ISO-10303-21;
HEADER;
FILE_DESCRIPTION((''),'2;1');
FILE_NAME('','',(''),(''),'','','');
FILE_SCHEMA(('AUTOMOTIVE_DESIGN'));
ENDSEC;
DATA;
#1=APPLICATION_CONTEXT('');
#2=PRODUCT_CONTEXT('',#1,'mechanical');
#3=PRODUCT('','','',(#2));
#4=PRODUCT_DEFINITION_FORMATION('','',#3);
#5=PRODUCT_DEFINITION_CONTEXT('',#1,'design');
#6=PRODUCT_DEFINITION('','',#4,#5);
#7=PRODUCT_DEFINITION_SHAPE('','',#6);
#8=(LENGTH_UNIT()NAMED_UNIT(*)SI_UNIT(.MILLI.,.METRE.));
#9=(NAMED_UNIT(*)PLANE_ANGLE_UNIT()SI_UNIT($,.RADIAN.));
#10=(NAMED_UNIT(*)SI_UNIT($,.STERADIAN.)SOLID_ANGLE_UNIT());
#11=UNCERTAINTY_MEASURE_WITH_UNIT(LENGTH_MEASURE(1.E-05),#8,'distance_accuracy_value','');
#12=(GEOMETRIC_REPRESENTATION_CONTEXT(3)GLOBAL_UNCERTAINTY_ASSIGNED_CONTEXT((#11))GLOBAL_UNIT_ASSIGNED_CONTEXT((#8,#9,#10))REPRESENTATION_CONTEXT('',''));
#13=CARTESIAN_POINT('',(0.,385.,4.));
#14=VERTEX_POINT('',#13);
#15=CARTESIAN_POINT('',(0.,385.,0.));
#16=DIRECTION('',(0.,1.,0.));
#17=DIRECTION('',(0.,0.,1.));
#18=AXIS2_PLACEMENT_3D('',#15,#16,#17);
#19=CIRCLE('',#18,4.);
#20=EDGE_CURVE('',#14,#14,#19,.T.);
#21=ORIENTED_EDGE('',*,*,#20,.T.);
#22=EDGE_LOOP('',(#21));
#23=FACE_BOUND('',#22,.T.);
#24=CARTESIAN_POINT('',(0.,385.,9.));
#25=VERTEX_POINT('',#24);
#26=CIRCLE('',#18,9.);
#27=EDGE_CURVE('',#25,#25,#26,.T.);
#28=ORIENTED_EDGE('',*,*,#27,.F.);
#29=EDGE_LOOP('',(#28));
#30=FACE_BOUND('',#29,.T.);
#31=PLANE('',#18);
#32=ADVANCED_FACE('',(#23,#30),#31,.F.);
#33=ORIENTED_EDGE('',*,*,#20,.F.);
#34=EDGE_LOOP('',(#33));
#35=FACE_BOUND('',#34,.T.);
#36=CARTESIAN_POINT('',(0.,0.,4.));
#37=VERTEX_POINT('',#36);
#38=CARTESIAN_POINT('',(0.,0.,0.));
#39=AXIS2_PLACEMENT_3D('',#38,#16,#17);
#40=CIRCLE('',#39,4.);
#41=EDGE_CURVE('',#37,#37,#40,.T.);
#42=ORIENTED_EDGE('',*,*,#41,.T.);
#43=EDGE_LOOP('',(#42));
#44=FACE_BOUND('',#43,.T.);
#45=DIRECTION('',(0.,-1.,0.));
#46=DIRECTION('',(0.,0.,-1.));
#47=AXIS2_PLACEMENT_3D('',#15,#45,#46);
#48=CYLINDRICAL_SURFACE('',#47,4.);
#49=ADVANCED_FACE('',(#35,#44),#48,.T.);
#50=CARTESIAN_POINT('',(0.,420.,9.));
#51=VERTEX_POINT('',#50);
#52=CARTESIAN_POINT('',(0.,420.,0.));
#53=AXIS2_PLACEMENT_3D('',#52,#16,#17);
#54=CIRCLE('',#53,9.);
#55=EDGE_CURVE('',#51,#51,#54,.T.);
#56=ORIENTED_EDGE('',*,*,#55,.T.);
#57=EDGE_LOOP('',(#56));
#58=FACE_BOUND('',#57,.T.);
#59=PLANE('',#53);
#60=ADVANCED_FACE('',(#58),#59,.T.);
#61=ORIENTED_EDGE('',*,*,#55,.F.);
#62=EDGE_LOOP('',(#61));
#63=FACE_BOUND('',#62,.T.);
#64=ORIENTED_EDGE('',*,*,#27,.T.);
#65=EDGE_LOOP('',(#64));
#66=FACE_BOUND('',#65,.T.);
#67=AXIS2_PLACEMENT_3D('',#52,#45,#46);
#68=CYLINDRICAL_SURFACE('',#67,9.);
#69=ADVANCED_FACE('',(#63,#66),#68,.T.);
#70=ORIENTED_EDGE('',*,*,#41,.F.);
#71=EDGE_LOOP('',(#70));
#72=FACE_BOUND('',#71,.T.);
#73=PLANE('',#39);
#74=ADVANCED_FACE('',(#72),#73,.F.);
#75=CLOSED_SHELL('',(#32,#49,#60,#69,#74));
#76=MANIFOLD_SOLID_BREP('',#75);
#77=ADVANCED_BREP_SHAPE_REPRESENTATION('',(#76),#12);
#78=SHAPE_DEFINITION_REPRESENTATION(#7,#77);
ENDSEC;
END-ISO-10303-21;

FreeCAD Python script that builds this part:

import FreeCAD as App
import Part
import Sketcher

V = App.Vector

doc = App.newDocument("Part")
body = doc.addObject("PartDesign::Body", "Body")

sketch1 = body.newObject("Sketcher::SketchObject", "Sketch")
sketch1.AttachmentSupport = (doc.getObject("XZ_Plane"), [""])
sketch1.MapMode = "FlatFace"
sketch1.addGeometry(Part.Circle(V(0, 0, 0), V(0, 0, 1), 4), False)
sketch1.addConstraint([
    Sketcher.Constraint("Coincident", 0, 3, -1, 1),
    Sketcher.Constraint("Diameter", 0, 8.0),
])
pad1 = body.newObject("PartDesign::Pad", "Pad")
pad1.Profile = sketch1
pad1.Length = 385
pad1.Reversed = True

sketch2 = body.newObject("Sketcher::SketchObject", "Sketch001")
sketch2.AttachmentSupport = (doc.getObject("XZ_Plane"), [""])
sketch2.MapMode = "FlatFace"
sketch2.AttachmentOffset = App.Placement(V(0, 0, -385), App.Rotation())
sketch2.addGeometry(Part.Circle(V(0, 0, 0), V(0, 0, 1), 9), False)
sketch2.addConstraint([
    Sketcher.Constraint("Coincident", 0, 3, -1, 1),
    Sketcher.Constraint("Diameter", 0, 18.0),
])
pad2 = body.newObject("PartDesign::Pad", "Pad001")
pad2.Profile = sketch2
pad2.Length = 35
pad2.Reversed = True

doc.recompute()
